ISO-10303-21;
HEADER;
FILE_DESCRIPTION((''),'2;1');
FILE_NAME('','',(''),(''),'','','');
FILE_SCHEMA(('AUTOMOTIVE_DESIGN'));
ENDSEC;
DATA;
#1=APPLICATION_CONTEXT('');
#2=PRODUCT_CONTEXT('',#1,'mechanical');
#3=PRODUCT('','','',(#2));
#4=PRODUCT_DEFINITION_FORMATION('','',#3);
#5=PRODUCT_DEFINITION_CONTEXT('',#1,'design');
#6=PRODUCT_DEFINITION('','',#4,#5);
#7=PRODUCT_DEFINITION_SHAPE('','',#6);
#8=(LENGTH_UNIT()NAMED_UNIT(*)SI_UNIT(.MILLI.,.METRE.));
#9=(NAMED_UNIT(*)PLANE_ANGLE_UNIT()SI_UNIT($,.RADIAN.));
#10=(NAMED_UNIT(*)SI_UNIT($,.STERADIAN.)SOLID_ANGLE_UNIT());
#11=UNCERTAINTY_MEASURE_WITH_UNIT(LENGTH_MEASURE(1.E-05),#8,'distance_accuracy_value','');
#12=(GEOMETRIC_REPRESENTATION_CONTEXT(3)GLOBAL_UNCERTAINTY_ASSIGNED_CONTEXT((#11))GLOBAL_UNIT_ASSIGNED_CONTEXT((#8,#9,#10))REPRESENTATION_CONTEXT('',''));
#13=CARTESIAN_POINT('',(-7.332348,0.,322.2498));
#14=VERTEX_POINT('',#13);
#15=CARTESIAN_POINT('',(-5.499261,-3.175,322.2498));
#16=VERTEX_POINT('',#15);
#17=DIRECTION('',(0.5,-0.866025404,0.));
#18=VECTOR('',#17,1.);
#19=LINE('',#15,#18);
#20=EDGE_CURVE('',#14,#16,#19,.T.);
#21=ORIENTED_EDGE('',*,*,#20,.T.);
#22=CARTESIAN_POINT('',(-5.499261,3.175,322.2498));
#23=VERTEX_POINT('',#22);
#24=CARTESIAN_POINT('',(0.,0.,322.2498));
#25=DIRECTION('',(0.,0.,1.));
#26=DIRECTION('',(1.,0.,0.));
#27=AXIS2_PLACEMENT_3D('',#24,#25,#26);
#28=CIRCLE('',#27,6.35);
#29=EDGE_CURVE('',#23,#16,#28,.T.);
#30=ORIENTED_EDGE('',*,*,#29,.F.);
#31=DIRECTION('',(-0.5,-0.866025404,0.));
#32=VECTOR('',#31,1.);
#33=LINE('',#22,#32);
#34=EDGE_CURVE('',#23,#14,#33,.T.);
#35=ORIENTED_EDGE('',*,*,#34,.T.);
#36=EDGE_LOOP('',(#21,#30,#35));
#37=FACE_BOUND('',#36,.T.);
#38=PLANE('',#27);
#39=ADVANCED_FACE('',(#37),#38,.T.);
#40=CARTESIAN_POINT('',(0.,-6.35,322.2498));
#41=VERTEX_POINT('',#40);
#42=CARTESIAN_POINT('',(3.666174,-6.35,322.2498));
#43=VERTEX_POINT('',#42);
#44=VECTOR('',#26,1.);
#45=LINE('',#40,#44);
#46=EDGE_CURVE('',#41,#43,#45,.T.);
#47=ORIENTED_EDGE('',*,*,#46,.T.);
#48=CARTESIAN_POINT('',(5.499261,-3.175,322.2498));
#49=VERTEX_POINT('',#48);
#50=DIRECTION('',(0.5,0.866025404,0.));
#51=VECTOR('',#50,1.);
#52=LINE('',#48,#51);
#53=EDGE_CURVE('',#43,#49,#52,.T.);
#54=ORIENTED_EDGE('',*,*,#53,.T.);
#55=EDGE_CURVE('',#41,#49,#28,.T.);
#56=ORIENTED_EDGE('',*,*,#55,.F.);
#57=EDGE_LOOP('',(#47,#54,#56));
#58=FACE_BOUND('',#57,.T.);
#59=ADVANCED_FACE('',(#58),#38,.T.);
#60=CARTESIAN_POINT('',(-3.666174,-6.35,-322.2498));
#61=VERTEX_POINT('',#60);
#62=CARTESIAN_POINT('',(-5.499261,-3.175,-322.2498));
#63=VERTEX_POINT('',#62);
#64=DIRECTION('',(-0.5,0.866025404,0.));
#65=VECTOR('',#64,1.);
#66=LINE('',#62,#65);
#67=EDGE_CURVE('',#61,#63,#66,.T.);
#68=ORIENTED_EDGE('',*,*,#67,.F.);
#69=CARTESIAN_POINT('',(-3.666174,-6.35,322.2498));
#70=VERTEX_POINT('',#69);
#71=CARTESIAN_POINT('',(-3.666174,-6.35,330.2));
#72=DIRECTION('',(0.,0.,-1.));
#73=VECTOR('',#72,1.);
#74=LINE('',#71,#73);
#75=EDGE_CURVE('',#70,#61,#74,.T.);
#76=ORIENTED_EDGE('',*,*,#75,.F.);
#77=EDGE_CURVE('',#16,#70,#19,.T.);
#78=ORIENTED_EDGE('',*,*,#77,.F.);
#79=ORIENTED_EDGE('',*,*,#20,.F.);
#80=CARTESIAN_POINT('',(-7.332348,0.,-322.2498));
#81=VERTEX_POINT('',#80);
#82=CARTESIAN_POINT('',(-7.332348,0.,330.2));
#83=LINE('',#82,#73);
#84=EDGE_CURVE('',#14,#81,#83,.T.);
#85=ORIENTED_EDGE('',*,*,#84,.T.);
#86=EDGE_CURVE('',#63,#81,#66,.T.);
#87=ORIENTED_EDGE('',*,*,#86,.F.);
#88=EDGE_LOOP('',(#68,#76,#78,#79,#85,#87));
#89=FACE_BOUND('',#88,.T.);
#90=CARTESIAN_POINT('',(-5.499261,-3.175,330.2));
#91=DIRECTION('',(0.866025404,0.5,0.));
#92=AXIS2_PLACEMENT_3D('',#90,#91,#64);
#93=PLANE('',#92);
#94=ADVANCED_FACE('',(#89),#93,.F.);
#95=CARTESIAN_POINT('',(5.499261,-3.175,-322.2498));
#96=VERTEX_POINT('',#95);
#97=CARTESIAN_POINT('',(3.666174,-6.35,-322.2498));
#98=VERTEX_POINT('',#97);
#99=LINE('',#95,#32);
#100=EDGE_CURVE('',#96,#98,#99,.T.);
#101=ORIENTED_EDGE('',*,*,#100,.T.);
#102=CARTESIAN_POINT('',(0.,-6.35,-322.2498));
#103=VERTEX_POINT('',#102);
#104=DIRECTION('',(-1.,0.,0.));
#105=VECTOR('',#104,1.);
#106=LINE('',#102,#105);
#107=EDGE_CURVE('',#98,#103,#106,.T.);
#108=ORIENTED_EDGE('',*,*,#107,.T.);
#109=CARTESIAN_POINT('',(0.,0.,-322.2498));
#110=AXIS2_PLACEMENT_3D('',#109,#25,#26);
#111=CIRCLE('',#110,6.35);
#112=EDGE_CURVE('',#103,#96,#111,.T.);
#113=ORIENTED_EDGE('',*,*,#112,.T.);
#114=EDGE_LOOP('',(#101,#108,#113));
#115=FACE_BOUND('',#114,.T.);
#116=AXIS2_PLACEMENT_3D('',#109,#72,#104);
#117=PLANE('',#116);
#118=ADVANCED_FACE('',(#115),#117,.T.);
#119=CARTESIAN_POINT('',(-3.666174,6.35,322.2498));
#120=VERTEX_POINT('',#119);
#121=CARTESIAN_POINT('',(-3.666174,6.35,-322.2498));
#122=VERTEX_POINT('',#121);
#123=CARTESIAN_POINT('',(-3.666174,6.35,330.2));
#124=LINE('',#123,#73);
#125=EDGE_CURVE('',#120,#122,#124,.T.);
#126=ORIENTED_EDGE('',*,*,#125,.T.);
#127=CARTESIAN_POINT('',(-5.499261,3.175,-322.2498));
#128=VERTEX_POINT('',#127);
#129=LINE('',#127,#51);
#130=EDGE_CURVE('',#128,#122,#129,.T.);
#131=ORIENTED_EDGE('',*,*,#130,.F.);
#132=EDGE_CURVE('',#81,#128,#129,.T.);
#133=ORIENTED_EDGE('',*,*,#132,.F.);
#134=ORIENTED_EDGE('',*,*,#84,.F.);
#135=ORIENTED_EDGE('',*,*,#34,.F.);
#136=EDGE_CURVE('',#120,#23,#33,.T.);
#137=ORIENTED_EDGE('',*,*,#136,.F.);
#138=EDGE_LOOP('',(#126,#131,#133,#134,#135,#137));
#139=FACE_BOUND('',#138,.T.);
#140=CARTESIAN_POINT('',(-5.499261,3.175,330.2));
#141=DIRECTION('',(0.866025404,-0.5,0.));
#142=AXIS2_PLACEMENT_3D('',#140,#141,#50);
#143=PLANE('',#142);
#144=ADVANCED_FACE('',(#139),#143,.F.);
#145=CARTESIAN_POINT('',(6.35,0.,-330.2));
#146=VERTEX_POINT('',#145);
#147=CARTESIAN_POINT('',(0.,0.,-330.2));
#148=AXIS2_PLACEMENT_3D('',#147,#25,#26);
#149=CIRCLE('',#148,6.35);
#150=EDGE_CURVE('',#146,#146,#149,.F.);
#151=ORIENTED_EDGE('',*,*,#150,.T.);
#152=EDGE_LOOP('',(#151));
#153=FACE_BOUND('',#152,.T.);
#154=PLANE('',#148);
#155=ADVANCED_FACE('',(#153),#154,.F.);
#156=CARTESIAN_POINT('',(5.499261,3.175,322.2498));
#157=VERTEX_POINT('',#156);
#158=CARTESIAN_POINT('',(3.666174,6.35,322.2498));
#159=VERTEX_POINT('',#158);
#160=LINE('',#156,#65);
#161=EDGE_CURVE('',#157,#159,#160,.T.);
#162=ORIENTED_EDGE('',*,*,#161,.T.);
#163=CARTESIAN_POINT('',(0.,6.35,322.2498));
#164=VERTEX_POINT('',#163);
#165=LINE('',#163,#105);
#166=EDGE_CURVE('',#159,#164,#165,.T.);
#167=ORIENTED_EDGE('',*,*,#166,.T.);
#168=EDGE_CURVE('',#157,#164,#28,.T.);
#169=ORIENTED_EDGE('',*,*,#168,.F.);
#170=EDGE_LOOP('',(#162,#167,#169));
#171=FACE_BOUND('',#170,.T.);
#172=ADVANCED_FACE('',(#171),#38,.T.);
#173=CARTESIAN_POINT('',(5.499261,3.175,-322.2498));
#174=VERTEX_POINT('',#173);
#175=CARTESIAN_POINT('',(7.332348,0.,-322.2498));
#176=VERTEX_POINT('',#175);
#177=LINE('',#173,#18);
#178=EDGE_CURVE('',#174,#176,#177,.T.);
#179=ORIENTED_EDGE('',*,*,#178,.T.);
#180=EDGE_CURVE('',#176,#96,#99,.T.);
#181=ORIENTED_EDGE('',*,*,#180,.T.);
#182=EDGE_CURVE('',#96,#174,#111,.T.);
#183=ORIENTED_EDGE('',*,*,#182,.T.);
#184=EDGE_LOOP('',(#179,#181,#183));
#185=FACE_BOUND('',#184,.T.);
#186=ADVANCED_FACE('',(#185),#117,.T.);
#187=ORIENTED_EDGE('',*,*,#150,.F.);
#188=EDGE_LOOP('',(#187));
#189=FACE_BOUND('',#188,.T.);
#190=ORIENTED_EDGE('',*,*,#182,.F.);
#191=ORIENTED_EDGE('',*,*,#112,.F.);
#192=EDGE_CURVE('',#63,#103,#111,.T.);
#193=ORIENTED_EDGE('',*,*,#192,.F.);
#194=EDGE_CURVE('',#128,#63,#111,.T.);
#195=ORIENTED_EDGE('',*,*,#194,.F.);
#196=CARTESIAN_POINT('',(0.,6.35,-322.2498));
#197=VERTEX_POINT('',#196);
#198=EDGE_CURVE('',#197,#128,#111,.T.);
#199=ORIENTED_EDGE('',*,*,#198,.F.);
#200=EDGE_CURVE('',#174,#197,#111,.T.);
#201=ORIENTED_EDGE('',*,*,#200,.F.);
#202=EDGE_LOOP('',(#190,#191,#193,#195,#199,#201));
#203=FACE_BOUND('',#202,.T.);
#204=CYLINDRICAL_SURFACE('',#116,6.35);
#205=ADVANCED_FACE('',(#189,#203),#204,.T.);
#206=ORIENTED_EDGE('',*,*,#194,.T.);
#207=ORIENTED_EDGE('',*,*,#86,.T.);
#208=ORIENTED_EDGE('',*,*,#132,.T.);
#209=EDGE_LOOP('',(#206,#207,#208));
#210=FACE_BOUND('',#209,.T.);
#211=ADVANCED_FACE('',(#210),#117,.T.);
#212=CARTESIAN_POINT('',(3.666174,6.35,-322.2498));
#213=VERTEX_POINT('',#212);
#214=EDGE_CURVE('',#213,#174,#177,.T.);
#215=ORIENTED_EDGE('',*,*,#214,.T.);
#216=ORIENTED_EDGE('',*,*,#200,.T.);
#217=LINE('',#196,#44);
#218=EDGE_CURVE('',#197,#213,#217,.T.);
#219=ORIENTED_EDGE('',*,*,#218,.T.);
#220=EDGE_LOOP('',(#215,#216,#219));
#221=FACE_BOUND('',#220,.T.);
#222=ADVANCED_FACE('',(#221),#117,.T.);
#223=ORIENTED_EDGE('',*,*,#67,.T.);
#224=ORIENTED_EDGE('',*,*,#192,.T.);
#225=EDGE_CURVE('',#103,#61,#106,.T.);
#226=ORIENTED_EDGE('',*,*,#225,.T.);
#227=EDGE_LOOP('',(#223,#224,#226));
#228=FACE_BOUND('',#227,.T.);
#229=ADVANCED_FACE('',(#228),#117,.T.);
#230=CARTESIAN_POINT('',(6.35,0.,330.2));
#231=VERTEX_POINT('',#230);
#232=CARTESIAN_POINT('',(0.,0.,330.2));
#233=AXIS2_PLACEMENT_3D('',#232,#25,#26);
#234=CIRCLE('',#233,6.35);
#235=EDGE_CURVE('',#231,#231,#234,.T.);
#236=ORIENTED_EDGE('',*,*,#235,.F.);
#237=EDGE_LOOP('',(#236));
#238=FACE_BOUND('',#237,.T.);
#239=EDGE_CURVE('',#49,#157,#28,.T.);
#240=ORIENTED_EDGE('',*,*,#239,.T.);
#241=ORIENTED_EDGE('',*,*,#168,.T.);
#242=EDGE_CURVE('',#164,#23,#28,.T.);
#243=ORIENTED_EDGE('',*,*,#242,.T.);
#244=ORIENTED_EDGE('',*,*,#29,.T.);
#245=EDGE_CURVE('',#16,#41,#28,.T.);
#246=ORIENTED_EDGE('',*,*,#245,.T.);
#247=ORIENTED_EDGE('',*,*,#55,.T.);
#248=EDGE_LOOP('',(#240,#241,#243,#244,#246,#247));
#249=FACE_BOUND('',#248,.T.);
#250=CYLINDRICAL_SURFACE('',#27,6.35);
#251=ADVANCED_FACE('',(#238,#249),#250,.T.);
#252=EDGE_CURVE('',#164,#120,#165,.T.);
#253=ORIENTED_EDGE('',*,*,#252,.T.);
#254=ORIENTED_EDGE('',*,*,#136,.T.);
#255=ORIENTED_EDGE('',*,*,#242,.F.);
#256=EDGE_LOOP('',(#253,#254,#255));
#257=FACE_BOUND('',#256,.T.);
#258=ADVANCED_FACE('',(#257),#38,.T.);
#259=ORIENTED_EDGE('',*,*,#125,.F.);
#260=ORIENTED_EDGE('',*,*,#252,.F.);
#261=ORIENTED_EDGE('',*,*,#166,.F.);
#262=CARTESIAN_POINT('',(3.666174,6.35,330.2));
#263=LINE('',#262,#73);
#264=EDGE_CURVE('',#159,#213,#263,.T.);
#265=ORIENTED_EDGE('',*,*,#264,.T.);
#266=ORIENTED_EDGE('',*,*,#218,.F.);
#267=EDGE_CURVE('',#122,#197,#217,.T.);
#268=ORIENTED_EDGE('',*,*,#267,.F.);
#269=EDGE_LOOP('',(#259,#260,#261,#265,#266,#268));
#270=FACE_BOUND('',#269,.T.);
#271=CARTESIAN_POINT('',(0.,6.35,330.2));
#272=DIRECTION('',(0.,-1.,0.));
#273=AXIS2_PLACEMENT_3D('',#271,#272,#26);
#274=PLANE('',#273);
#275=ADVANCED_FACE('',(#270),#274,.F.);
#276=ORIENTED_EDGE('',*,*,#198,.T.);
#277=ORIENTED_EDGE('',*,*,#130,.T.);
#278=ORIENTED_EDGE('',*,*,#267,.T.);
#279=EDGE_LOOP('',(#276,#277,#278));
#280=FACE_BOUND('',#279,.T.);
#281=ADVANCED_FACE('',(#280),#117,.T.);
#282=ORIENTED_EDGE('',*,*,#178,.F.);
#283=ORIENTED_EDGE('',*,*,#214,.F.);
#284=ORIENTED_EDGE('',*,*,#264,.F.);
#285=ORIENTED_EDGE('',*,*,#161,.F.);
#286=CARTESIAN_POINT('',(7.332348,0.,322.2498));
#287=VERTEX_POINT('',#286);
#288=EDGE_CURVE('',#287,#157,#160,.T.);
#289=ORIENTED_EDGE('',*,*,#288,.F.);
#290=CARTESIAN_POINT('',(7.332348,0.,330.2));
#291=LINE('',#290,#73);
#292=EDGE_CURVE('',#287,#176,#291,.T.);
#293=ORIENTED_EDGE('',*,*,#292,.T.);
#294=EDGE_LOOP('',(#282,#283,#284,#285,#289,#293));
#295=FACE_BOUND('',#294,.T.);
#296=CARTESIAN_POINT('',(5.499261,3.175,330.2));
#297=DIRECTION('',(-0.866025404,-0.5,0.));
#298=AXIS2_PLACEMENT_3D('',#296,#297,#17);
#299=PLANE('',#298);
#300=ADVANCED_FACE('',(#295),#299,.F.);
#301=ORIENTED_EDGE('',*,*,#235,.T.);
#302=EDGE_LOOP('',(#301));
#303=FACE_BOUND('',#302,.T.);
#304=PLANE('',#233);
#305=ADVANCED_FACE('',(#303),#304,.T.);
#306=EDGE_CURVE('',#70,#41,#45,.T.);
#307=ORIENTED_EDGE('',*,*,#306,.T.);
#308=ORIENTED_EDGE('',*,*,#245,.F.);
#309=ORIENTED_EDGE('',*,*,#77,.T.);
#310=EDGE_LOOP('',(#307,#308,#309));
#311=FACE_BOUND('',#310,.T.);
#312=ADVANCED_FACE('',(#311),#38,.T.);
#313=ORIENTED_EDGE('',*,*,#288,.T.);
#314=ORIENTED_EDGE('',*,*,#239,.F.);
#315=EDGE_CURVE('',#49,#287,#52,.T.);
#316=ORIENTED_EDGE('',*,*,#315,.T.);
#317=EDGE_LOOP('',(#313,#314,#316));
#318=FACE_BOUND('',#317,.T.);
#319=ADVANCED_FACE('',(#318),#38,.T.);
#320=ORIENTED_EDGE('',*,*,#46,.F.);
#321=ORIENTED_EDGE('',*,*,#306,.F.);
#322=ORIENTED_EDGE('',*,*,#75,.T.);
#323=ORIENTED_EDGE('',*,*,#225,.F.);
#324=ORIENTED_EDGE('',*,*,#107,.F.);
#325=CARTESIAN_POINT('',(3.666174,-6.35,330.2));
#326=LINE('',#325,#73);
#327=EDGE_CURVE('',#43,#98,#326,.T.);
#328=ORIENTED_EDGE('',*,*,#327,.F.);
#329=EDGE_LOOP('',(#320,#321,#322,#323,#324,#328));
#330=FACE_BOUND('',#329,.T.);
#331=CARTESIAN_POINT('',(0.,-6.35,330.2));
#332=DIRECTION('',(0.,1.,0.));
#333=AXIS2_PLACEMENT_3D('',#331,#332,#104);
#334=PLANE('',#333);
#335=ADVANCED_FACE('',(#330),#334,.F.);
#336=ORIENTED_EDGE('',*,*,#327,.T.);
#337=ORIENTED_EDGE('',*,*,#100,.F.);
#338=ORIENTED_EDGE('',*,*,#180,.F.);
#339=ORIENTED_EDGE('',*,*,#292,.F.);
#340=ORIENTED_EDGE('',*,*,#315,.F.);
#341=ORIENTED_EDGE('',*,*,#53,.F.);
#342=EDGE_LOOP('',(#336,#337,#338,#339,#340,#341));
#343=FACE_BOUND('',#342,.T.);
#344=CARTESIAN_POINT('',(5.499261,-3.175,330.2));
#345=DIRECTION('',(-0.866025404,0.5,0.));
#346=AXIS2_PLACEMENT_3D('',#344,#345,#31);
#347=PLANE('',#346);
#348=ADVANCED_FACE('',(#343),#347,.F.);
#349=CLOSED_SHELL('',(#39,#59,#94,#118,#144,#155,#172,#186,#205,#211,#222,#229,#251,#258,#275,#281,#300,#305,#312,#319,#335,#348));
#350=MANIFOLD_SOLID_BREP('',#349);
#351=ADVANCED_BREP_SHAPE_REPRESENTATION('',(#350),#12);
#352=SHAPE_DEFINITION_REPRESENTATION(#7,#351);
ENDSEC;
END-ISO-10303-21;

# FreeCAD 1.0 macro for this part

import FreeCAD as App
import Part
import Sketcher
from FreeCAD import Vector
Q = App.Units.Quantity

doc = App.newDocument("Part")
body = doc.addObject("PartDesign::Body", "Body")

# Sketch on XY plane
sketch1 = doc.addObject("Sketcher::SketchObject", "Sketch")
body.addObject(sketch1)
sketch1.AttachmentSupport = (doc.XY_Plane, [""])
sketch1.MapMode = "FlatFace"
sketch1.addGeometry([
    Part.LineSegment(Vector(7.332348, 0, 0), Vector(3.666174, 6.35, 0)),  # 0
    Part.LineSegment(Vector(3.666174, 6.35, 0), Vector(-3.666174, 6.35, 0)),  # 1
    Part.LineSegment(Vector(-3.666174, 6.35, 0), Vector(-7.332348, 0, 0)),  # 2
    Part.LineSegment(Vector(-7.332348, 0, 0), Vector(-3.666174, -6.35, 0)),  # 3
    Part.LineSegment(Vector(-3.666174, -6.35, 0), Vector(3.666174, -6.35, 0)),  # 4
    Part.LineSegment(Vector(3.666174, -6.35, 0), Vector(7.332348, 0, 0)),  # 5
], False)
sketch1.addConstraint([
    Sketcher.Constraint("Coincident", 0, 2, 1, 1),
    Sketcher.Constraint("Coincident", 1, 2, 2, 1),
    Sketcher.Constraint("Coincident", 2, 2, 3, 1),
    Sketcher.Constraint("Coincident", 3, 2, 4, 1),
    Sketcher.Constraint("Coincident", 4, 2, 5, 1),
    Sketcher.Constraint("Coincident", 5, 2, 0, 1),
    Sketcher.Constraint("Horizontal", 1),
    Sketcher.Constraint("Horizontal", 4),
    Sketcher.Constraint("Symmetric", 0, 2, 3, 2, -1, 1),
    Sketcher.Constraint("Symmetric", 2, 2, 5, 2, -1, 1),
    Sketcher.Constraint("PointOnObject", 2, 2, -1),
    Sketcher.Constraint("Parallel", 2, 5),
    Sketcher.Constraint("Vertical", 1, 2, 3, 2),
    Sketcher.Constraint("Angle", 0, Q("120 deg")),
    Sketcher.Constraint("DistanceY", 3, 2, 1, 2, Q("0.5 in")),
    Sketcher.Constraint("DistanceX", 1, 2, 1, 1, Q("7.332348 mm")),
])
pad1 = doc.addObject("PartDesign::Pad", "Pad")
body.addObject(pad1)
pad1.Profile = sketch1
pad1.Length = Q("26 in")
pad1.Midplane = True

# Sketch on XY plane
sketch2 = doc.addObject("Sketcher::SketchObject", "Sketch001")
body.addObject(sketch2)
sketch2.AttachmentSupport = (doc.XY_Plane, [""])
sketch2.MapMode = "FlatFace"
sketch2.AttachmentOffset = App.Placement(Vector(0, 0, 13 * 25.4), App.Rotation())
sketch2.addGeometry([
    Part.LineSegment(Vector(-74.4, 73.418, 0), Vector(-74.4, -73.418, 0)),  # 0
    Part.LineSegment(Vector(-74.4, -73.418, 0), Vector(74.4, -73.418, 0)),  # 1
    Part.LineSegment(Vector(74.4, -73.418, 0), Vector(74.4, 73.418, 0)),  # 2
    Part.LineSegment(Vector(74.4, 73.418, 0), Vector(-74.4, 73.418, 0)),  # 3
    Part.Circle(Vector(0, 0, 0), Vector(0, 0, 1), 6.35),  # 4
], False)
sketch2.addConstraint([
    Sketcher.Constraint("Coincident", 0, 2, 1, 1),
    Sketcher.Constraint("Coincident", 1, 2, 2, 1),
    Sketcher.Constraint("Coincident", 2, 2, 3, 1),
    Sketcher.Constraint("Coincident", 3, 2, 0, 1),
    Sketcher.Constraint("Vertical", 0),
    Sketcher.Constraint("Horizontal", 1),
    Sketcher.Constraint("Vertical", 2),
    Sketcher.Constraint("Horizontal", 3),
    Sketcher.Constraint("Coincident", 4, 3, -1, 1),
    Sketcher.Constraint("Symmetric", 0, 2, 2, 2, -1, 1),
    Sketcher.Constraint("Diameter", 4, Q("0.5 in")),
    Sketcher.Constraint("DistanceX", 1, 1, 1, 2, Q("148.8 mm")),
    Sketcher.Constraint("DistanceY", 0, 2, 0, 1, Q("146.836 mm")),
])
pocket1 = doc.addObject("PartDesign::Pocket", "Pocket")
body.addObject(pocket1)
pocket1.Profile = sketch2
pocket1.Length = Q("0.313 in")
doc.recompute()

mirrored = doc.addObject("PartDesign::Mirrored", "Mirrored")
body.addObject(mirrored)
mirrored.Originals = [pocket1]
mirrored.MirrorPlane = (doc.XY_Plane, [""])
body.Tip = mirrored

doc.recompute()
